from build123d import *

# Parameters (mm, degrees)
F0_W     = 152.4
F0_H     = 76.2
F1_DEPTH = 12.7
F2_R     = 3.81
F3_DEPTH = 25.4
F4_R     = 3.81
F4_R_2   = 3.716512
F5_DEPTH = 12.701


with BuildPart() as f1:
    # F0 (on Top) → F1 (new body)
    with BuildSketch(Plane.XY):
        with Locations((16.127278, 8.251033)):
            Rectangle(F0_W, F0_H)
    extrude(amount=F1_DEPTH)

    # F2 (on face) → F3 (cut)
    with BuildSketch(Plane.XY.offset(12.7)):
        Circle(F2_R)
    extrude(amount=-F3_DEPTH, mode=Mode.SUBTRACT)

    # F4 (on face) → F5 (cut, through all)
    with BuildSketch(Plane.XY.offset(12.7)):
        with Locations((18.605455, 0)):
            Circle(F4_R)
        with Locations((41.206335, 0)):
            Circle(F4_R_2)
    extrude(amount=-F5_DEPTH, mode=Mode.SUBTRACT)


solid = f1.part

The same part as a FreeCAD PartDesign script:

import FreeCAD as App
import Part
import Sketcher
Q = App.Units.Quantity


def add_polygon(sketch, points):
    """Adds a closed chain of lines whose ends are joined by coincident constraints."""
    first, n = sketch.GeometryCount, len(points)
    for a, b in zip(points, points[1:] + points[:1]):
        sketch.addGeometry(Part.LineSegment(App.Vector(*a, 0), App.Vector(*b, 0)), False)
    for i in range(n):
        sketch.addConstraint(Sketcher.Constraint("Coincident", first + i, 2, first + (i + 1) % n, 1))

doc = App.newDocument("Part")
body = doc.addObject("PartDesign::Body", "Body")

# Sketch on XY plane
sketch1 = doc.addObject("Sketcher::SketchObject", "Sketch")
body.addObject(sketch1)
sketch1.AttachmentSupport = (doc.XY_Plane, [""])
sketch1.MapMode = "FlatFace"
add_polygon(sketch1, [(-60.072722, 46.351033), (-60.072722, -29.848967), (92.327278, -29.848967), (92.327278, 46.351033)])  # lines 0-3
sketch1.addConstraint([
    Sketcher.Constraint("Vertical", 0),
    Sketcher.Constraint("Horizontal", 1),
    Sketcher.Constraint("Vertical", 2),
    Sketcher.Constraint("Horizontal", 3),
    Sketcher.Constraint("DistanceX", 1, 1, 1, 2, Q("6 in")),
    Sketcher.Constraint("DistanceY", 0, 2, 0, 1, Q("3 in")),
    Sketcher.Constraint("DistanceX", -1, 1, 1, 2, 92.327278),
    Sketcher.Constraint("DistanceY", 0, 2, -1, 1, 29.848967),
])
pad1 = doc.addObject("PartDesign::Pad", "Pad")
body.addObject(pad1)
pad1.Profile = sketch1
pad1.Length = Q("0.5 in")

# Sketch on XY plane
sketch2 = doc.addObject("Sketcher::SketchObject", "Sketch001")
body.addObject(sketch2)
sketch2.AttachmentSupport = (doc.XY_Plane, [""])
sketch2.MapMode = "FlatFace"
sketch2.AttachmentOffset = App.Placement(App.Vector(0, 0, 0.5 * 25.4), App.Rotation())
sketch2.addGeometry(Part.Circle(App.Vector(0, 0, 0), App.Vector(0, 0, 1), 3.81), False)
sketch2.addConstraint([
    Sketcher.Constraint("Coincident", 0, 3, -1, 1),
    Sketcher.Constraint("Diameter", 0, Q("0.3 in")),
])
pocket1 = doc.addObject("PartDesign::Pocket", "Pocket")
body.addObject(pocket1)
pocket1.Profile = sketch2
pocket1.Length = Q("1 in")

# Sketch on XY plane
sketch3 = doc.addObject("Sketcher::SketchObject", "Sketch002")
body.addObject(sketch3)
sketch3.AttachmentSupport = (doc.XY_Plane, [""])
sketch3.MapMode = "FlatFace"
sketch3.AttachmentOffset = App.Placement(App.Vector(0, 0, 0.5 * 25.4), App.Rotation())
sketch3.addGeometry([
    Part.Circle(App.Vector(18.605455, 0, 0), App.Vector(0, 0, 1), 3.81),
    Part.Circle(App.Vector(41.206335, 0, 0), App.Vector(0, 0, 1), 3.716512),
], False)
sketch3.addConstraint([
    Sketcher.Constraint("PointOnObject", 0, 3, -1),
    Sketcher.Constraint("PointOnObject", 1, 3, -1),
    Sketcher.Constraint("Diameter", 0, Q("0.3 in")),
    Sketcher.Constraint("Diameter", 1, 7.433024),
    Sketcher.Constraint("DistanceX", 0, 3, 1, 3, 22.60088),
    Sketcher.Constraint("DistanceX", -1, 1, 0, 3, 18.605455),
])
pocket2 = doc.addObject("PartDesign::Pocket", "Pocket001")
body.addObject(pocket2)
pocket2.Profile = sketch3
pocket2.Type = "ThroughAll"

doc.recompute()
